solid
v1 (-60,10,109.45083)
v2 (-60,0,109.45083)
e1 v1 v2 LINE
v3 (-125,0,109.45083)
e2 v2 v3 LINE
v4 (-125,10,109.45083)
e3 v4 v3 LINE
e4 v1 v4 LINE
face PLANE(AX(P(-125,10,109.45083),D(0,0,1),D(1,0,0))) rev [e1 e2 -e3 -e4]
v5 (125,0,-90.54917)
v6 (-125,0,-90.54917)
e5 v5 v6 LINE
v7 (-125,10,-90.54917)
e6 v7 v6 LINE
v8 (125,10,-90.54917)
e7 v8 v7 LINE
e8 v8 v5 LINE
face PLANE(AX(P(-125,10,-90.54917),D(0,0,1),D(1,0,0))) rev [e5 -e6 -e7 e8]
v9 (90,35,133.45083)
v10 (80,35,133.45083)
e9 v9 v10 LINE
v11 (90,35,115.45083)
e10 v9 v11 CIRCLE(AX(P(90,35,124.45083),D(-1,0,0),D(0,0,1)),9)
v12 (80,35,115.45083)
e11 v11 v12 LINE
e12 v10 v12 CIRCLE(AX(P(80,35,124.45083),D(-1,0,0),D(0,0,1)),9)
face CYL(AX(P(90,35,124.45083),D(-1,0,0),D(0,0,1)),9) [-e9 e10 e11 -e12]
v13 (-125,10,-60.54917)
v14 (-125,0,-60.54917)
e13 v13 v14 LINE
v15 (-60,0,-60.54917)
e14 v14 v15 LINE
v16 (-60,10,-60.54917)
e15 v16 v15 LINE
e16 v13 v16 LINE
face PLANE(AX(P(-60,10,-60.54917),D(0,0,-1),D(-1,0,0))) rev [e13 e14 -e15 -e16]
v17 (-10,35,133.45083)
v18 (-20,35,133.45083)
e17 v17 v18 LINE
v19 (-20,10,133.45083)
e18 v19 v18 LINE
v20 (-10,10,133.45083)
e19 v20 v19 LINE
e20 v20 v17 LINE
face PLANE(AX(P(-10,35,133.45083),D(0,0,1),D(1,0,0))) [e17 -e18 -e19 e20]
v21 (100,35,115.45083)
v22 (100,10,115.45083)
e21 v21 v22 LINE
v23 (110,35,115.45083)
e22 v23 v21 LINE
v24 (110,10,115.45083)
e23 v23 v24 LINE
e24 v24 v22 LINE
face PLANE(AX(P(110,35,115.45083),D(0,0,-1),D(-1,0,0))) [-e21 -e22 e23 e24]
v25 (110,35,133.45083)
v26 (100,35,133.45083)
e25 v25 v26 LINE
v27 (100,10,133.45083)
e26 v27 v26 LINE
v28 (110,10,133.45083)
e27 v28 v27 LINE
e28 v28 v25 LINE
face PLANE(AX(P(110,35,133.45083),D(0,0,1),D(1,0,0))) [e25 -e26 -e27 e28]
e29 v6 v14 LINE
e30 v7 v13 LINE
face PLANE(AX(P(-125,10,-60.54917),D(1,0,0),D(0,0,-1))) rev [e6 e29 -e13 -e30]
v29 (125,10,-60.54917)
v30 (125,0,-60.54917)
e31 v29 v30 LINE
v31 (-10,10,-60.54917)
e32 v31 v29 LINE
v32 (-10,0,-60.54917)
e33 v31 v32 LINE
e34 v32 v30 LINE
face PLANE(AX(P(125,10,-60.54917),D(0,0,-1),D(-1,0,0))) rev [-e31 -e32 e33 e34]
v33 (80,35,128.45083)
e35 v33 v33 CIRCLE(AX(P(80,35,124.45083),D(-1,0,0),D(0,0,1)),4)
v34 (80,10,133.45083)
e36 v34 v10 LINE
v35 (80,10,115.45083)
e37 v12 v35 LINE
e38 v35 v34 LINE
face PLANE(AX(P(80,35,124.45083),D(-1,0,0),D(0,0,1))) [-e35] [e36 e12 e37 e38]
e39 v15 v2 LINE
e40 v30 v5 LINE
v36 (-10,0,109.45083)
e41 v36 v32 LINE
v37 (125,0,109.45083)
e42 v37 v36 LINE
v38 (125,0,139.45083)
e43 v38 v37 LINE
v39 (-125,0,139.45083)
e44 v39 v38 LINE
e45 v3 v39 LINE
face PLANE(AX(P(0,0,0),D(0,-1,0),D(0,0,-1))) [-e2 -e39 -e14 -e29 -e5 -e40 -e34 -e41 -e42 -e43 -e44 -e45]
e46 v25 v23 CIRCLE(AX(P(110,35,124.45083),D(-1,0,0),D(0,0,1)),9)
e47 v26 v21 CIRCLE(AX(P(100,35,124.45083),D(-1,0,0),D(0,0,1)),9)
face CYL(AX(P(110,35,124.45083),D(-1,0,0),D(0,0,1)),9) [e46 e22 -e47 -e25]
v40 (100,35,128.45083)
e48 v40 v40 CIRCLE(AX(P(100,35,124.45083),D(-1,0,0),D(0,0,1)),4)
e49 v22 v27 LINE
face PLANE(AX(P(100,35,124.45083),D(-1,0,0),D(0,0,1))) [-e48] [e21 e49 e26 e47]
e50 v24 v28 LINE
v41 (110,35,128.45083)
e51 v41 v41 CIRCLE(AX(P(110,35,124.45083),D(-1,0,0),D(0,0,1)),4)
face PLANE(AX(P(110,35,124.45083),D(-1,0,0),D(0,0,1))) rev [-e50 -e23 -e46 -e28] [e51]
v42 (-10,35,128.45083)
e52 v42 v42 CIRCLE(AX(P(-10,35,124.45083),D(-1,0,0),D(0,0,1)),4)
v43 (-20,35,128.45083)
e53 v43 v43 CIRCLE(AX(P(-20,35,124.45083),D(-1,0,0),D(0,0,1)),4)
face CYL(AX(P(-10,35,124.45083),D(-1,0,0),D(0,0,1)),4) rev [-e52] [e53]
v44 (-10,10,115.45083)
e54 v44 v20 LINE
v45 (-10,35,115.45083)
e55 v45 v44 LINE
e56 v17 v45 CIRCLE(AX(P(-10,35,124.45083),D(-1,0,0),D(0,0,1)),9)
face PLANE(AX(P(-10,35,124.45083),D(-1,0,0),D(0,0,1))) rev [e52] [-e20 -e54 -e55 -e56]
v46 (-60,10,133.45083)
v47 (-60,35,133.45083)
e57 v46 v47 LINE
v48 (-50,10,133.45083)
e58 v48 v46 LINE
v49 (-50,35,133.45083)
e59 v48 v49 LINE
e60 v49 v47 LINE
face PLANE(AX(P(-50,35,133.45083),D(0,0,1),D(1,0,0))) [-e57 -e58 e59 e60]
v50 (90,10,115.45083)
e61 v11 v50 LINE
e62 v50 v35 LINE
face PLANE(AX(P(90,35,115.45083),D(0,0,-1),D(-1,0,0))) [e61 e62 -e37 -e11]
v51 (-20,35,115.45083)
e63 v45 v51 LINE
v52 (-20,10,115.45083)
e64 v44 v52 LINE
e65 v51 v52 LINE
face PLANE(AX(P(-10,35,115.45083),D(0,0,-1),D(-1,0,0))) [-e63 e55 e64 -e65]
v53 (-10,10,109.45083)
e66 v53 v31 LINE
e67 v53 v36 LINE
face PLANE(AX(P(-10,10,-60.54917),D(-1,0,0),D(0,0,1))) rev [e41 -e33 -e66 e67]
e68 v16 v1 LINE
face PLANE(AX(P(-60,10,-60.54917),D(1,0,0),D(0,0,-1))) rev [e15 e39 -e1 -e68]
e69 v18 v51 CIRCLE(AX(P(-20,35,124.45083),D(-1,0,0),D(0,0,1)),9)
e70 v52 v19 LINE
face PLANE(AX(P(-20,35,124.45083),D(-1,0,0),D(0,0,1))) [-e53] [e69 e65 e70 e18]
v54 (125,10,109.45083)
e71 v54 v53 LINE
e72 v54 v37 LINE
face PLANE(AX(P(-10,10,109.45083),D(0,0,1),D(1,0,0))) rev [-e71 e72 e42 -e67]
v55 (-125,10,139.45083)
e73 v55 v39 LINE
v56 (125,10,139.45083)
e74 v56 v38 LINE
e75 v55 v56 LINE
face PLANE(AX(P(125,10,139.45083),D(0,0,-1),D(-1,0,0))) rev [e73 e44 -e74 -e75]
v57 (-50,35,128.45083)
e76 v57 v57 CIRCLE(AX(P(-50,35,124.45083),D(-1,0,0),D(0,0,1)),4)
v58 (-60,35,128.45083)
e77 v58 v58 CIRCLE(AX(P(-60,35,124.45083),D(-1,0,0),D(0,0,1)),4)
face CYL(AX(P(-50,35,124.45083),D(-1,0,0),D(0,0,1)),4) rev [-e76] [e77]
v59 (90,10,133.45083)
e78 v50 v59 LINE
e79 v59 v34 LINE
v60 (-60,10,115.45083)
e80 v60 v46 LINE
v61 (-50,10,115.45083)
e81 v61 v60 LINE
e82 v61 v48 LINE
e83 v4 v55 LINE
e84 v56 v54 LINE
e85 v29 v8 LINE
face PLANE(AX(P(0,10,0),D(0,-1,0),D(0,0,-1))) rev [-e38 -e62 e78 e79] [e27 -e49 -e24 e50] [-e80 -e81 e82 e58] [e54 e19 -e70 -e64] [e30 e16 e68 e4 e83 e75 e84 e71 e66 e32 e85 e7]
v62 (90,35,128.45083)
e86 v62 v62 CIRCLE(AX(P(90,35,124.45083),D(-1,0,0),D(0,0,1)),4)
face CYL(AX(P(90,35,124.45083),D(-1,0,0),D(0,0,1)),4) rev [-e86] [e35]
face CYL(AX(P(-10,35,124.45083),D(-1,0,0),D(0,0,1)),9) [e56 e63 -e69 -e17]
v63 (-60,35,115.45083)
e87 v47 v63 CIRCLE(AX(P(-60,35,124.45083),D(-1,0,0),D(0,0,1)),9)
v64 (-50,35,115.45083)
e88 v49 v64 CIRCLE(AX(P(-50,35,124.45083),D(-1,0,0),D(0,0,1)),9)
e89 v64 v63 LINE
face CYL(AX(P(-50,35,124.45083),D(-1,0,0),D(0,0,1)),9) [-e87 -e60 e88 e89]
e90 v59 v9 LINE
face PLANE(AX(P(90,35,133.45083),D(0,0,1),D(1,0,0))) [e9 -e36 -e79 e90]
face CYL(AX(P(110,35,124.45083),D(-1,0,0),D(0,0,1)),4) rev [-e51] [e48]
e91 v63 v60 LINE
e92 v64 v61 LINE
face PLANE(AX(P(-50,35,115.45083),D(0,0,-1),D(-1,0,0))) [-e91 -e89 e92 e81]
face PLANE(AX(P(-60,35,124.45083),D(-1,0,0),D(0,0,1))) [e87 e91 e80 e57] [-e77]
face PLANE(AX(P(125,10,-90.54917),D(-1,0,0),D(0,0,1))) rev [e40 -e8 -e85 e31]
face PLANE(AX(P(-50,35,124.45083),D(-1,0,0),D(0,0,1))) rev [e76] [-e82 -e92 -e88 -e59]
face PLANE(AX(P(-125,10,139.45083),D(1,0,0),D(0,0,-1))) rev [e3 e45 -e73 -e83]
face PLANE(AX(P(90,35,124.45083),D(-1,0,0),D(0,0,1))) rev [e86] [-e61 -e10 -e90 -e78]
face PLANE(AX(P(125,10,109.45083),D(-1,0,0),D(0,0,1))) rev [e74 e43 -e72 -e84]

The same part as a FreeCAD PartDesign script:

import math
import FreeCAD as App
import Part
import Sketcher

V = App.Vector


def add_polygon(sketch, points):
    """Adds a closed chain of lines whose ends are joined by coincident constraints."""
    first, n = sketch.GeometryCount, len(points)
    for a, b in zip(points, points[1:] + points[:1]):
        sketch.addGeometry(Part.LineSegment(App.Vector(*a, 0), App.Vector(*b, 0)), False)
    for i in range(n):
        sketch.addConstraint(Sketcher.Constraint("Coincident", first + i, 2, first + (i + 1) % n, 1))

doc = App.newDocument("Part")
body = doc.addObject("PartDesign::Body", "Body")

# Sketch on XZ plane
sketch1 = body.newObject("Sketcher::SketchObject", "Sketch")
sketch1.AttachmentSupport = (doc.getObject("XZ_Plane"), [""])
sketch1.MapMode = "FlatFace"
add_polygon(sketch1, [(125, -91), (-125, -91), (-125, -61), (-60, -61), (-60, 109), (-125, 109), (-125, 139), (125, 139), (125, 109), (-10, 109), (-10, -61), (125, -61)])  # lines 0-11
sketch1.addConstraint(Sketcher.Constraint("Horizontal", 0))
sketch1.addConstraint(Sketcher.Constraint("Vertical", 1))
sketch1.addConstraint(Sketcher.Constraint("Horizontal", 2))
sketch1.addConstraint(Sketcher.Constraint("Vertical", 3))
sketch1.addConstraint(Sketcher.Constraint("Horizontal", 4))
sketch1.addConstraint(Sketcher.Constraint("Vertical", 5))
sketch1.addConstraint(Sketcher.Constraint("Horizontal", 6))
sketch1.addConstraint(Sketcher.Constraint("Vertical", 7))
sketch1.addConstraint(Sketcher.Constraint("Horizontal", 8))
sketch1.addConstraint(Sketcher.Constraint("Vertical", 9))
sketch1.addConstraint(Sketcher.Constraint("Horizontal", 10))
sketch1.addConstraint(Sketcher.Constraint("Vertical", 11))
sketch1.addConstraint(Sketcher.Constraint("Symmetric", 4, 2, 7, 2, -2))
sketch1.addConstraint(Sketcher.Constraint("Symmetric", 1, 2, 10, 2, -2))
sketch1.addConstraint(Sketcher.Constraint("Vertical", 1, 2, 4, 2))
sketch1.addConstraint(Sketcher.Constraint("Equal", 1, 5))
sketch1.addConstraint(Sketcher.Constraint("DistanceX", 0, 2, 0, 1, 250.0))
sketch1.addConstraint(Sketcher.Constraint("DistanceX", 2, 1, 2, 2, 65.0))
sketch1.addConstraint(Sketcher.Constraint("DistanceX", 8, 2, 8, 1, 135.0))
sketch1.addConstraint(Sketcher.Constraint("DistanceY", 1, 1, 1, 2, 30.0))
sketch1.addConstraint(Sketcher.Constraint("DistanceY", 3, 1, 3, 2, 170.0))
sketch1.addConstraint(Sketcher.Constraint("DistanceY", 0, 2, -1, 1, 90.54917))
pad1 = body.newObject("PartDesign::Pad", "Pad")
pad1.Profile = sketch1
pad1.Length = 10
pad1.Reversed = True

# Sketch on YZ plane
sketch2 = body.newObject("Sketcher::SketchObject", "Sketch001")
sketch2.AttachmentSupport = (doc.getObject("YZ_Plane"), [""])
sketch2.MapMode = "FlatFace"
sketch2.AttachmentOffset = App.Placement(V(0, 0, -60), App.Rotation())
sketch2.addGeometry(Part.LineSegment(V(10, 115.5, 0), V(10, 133.5, 0)), False)
sketch2.addGeometry(Part.LineSegment(V(10, 133.5, 0), V(35, 133.5, 0)), False)
sketch2.addGeometry(Part.ArcOfCircle(Part.Circle(V(35, 124.5, 0), V(0, 0, 1), 9), math.radians(-90), math.radians(90)), False)
sketch2.addGeometry(Part.LineSegment(V(35, 115.5, 0), V(10, 115.5, 0)), False)
sketch2.addGeometry(Part.Circle(V(35, 124.5, 0), V(0, 0, 1), 4), False)
sketch2.addConstraint(Sketcher.Constraint("Coincident", 0, 2, 1, 1))
sketch2.addConstraint(Sketcher.Constraint("Tangent", 1, 2, 2, 2))
sketch2.addConstraint(Sketcher.Constraint("Tangent", 2, 1, 3, 1))
sketch2.addConstraint(Sketcher.Constraint("Coincident", 3, 2, 0, 1))
sketch2.addConstraint(Sketcher.Constraint("Vertical", 0))
sketch2.addConstraint(Sketcher.Constraint("Horizontal", 1))
sketch2.addConstraint(Sketcher.Constraint("Horizontal", 3))
sketch2.addConstraint(Sketcher.Constraint("Coincident", 4, 3, 2, 3))
sketch2.addConstraint(Sketcher.Constraint("Diameter", 4, 8.0))
sketch2.addConstraint(Sketcher.Constraint("Radius", 2, 9.0))
sketch2.addConstraint(Sketcher.Constraint("DistanceX", 1, 1, 1, 2, 25.0))
sketch2.addConstraint(Sketcher.Constraint("DistanceX", -1, 1, 2, 3, 35.0))
sketch2.addConstraint(Sketcher.Constraint("DistanceY", -1, 1, 2, 3, 124.45083))
pad2 = body.newObject("PartDesign::Pad", "Pad001")
pad2.Profile = sketch2
pad2.Length = 10
doc.recompute()

linearpattern = body.newObject("PartDesign::LinearPattern", "LinearPattern")
linearpattern.Originals = [pad2]
linearpattern.Direction = (doc.getObject("X_Axis"), [""])
linearpattern.Mode = "offset"
linearpattern.Offset = 40
linearpattern.Occurrences = 2
body.Tip = linearpattern
doc.recompute()

linearpattern2 = body.newObject("PartDesign::LinearPattern", "LinearPattern001")
linearpattern2.Originals = [pad2]
linearpattern2.Direction = (doc.getObject("X_Axis"), [""])
linearpattern2.Mode = "offset"
linearpattern2.Offset = 140
linearpattern2.Occurrences = 2
body.Tip = linearpattern2
doc.recompute()

linearpattern3 = body.newObject("PartDesign::LinearPattern", "LinearPattern002")
linearpattern3.Originals = [pad2]
linearpattern3.Direction = (doc.getObject("X_Axis"), [""])
linearpattern3.Mode = "offset"
linearpattern3.Offset = 160
linearpattern3.Occurrences = 2
body.Tip = linearpattern3

doc.recompute()
